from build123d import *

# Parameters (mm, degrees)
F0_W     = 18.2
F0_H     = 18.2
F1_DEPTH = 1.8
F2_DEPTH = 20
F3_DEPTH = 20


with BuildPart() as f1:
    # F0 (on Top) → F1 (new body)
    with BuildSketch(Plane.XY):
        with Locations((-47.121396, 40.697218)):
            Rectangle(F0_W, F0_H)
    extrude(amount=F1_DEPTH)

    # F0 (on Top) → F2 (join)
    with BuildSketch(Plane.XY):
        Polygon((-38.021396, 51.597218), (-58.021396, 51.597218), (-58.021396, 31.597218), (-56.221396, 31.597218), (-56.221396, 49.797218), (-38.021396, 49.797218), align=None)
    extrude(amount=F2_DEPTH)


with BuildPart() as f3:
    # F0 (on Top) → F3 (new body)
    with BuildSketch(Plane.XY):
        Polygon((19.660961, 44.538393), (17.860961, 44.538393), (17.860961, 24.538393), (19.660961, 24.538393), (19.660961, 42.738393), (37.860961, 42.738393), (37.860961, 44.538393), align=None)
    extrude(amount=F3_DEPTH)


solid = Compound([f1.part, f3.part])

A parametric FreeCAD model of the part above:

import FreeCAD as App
import Part
import Sketcher
Q = App.Units.Quantity

doc = App.newDocument("Part")
body = doc.addObject("PartDesign::Body", "Body")

sketch1 = body.newObject("Sketcher::SketchObject", "Sketch")
sketch1.AttachmentSupport = (doc.getObject("XY_Plane"), [""])
sketch1.MapMode = "FlatFace"
sketch1.addGeometry(Part.LineSegment(App.Vector(-56, 50, 0), App.Vector(-56, 32, 0)), False)
sketch1.addGeometry(Part.LineSegment(App.Vector(-56, 32, 0), App.Vector(-38, 32, 0)), False)
sketch1.addGeometry(Part.LineSegment(App.Vector(-38, 32, 0), App.Vector(-38, 50, 0)), False)
sketch1.addGeometry(Part.LineSegment(App.Vector(-38, 50, 0), App.Vector(-56, 50, 0)), False)
sketch1.addConstraint(Sketcher.Constraint("Coincident", 0, 2, 1, 1))
sketch1.addConstraint(Sketcher.Constraint("Coincident", 1, 2, 2, 1))
sketch1.addConstraint(Sketcher.Constraint("Coincident", 2, 2, 3, 1))
sketch1.addConstraint(Sketcher.Constraint("Coincident", 3, 2, 0, 1))
sketch1.addConstraint(Sketcher.Constraint("Vertical", 0))
sketch1.addConstraint(Sketcher.Constraint("Horizontal", 1))
sketch1.addConstraint(Sketcher.Constraint("Vertical", 2))
sketch1.addConstraint(Sketcher.Constraint("Horizontal", 3))
sketch1.addConstraint(Sketcher.Constraint("Equal", 3, 0))
sketch1.addConstraint(Sketcher.Constraint("DistanceX", 1, 1, 1, 2, Q("18.2 mm")))
sketch1.addConstraint(Sketcher.Constraint("DistanceY", -1, 1, 0, 2, Q("31.597218 mm")))
sketch1.addConstraint(Sketcher.Constraint("DistanceX", 0, 2, -1, 1, Q("56.221396 mm")))
pad1 = body.newObject("PartDesign::Pad", "Pad")
pad1.Profile = sketch1
pad1.Length = 1.8

sketch2 = body.newObject("Sketcher::SketchObject", "Sketch001")
sketch2.AttachmentSupport = (doc.getObject("XY_Plane"), [""])
sketch2.MapMode = "FlatFace"
sketch2.addGeometry(Part.LineSegment(App.Vector(-38, 51.6, 0), App.Vector(-58, 51.6, 0)), False)
sketch2.addGeometry(Part.LineSegment(App.Vector(-58, 51.6, 0), App.Vector(-58, 31.6, 0)), False)
sketch2.addGeometry(Part.LineSegment(App.Vector(-58, 31.6, 0), App.Vector(-56.2, 31.6, 0)), False)
sketch2.addGeometry(Part.LineSegment(App.Vector(-56.2, 31.6, 0), App.Vector(-56.2, 49.8, 0)), False)
sketch2.addGeometry(Part.LineSegment(App.Vector(-56.2, 49.8, 0), App.Vector(-38, 49.8, 0)), False)
sketch2.addGeometry(Part.LineSegment(App.Vector(-38, 49.8, 0), App.Vector(-38, 51.6, 0)), False)
sketch2.addConstraint(Sketcher.Constraint("Coincident", 0, 2, 1, 1))
sketch2.addConstraint(Sketcher.Constraint("Coincident", 1, 2, 2, 1))
sketch2.addConstraint(Sketcher.Constraint("Coincident", 2, 2, 3, 1))
sketch2.addConstraint(Sketcher.Constraint("Coincident", 3, 2, 4, 1))
sketch2.addConstraint(Sketcher.Constraint("Coincident", 4, 2, 5, 1))
sketch2.addConstraint(Sketcher.Constraint("Coincident", 5, 2, 0, 1))
sketch2.addConstraint(Sketcher.Constraint("Horizontal", 0))
sketch2.addConstraint(Sketcher.Constraint("Vertical", 1))
sketch2.addConstraint(Sketcher.Constraint("Horizontal", 2))
sketch2.addConstraint(Sketcher.Constraint("Vertical", 3))
sketch2.addConstraint(Sketcher.Constraint("Horizontal", 4))
sketch2.addConstraint(Sketcher.Constraint("Vertical", 5))
sketch2.addConstraint(Sketcher.Constraint("Equal", 0, 1))
sketch2.addConstraint(Sketcher.Constraint("Equal", 4, 3))
sketch2.addConstraint(Sketcher.Constraint("DistanceX", 0, 2, 0, 1, Q("20 mm")))
sketch2.addConstraint(Sketcher.Constraint("DistanceX", 2, 1, 2, 2, Q("1.8 mm")))
sketch2.addConstraint(Sketcher.Constraint("DistanceY", -1, 1, 1, 2, Q("31.597218 mm")))
sketch2.addConstraint(Sketcher.Constraint("DistanceX", 0, 2, -1, 1, Q("58.021396 mm")))
pad2 = body.newObject("PartDesign::Pad", "Pad001")
pad2.Profile = sketch2
pad2.Length = 20
body2 = doc.addObject("PartDesign::Body", "Body001")

sketch3 = body2.newObject("Sketcher::SketchObject", "Sketch002")
sketch3.AttachmentSupport = (doc.getObject("XY_Plane001"), [""])
sketch3.MapMode = "FlatFace"
sketch3.addGeometry(Part.LineSegment(App.Vector(17.9, 44.5, 0), App.Vector(17.9, 24.5, 0)), False)
sketch3.addGeometry(Part.LineSegment(App.Vector(17.9, 24.5, 0), App.Vector(19.7, 24.5, 0)), False)
sketch3.addGeometry(Part.LineSegment(App.Vector(19.7, 24.5, 0), App.Vector(19.7, 42.7, 0)), False)
sketch3.addGeometry(Part.LineSegment(App.Vector(19.7, 42.7, 0), App.Vector(37.9, 42.7, 0)), False)
sketch3.addGeometry(Part.LineSegment(App.Vector(37.9, 42.7, 0), App.Vector(37.9, 44.5, 0)), False)
sketch3.addGeometry(Part.LineSegment(App.Vector(37.9, 44.5, 0), App.Vector(17.9, 44.5, 0)), False)
sketch3.addConstraint(Sketcher.Constraint("Coincident", 0, 2, 1, 1))
sketch3.addConstraint(Sketcher.Constraint("Coincident", 1, 2, 2, 1))
sketch3.addConstraint(Sketcher.Constraint("Coincident", 2, 2, 3, 1))
sketch3.addConstraint(Sketcher.Constraint("Coincident", 3, 2, 4, 1))
sketch3.addConstraint(Sketcher.Constraint("Coincident", 4, 2, 5, 1))
sketch3.addConstraint(Sketcher.Constraint("Coincident", 5, 2, 0, 1))
sketch3.addConstraint(Sketcher.Constraint("Vertical", 0))
sketch3.addConstraint(Sketcher.Constraint("Horizontal", 1))
sketch3.addConstraint(Sketcher.Constraint("Vertical", 2))
sketch3.addConstraint(Sketcher.Constraint("Horizontal", 3))
sketch3.addConstraint(Sketcher.Constraint("Vertical", 4))
sketch3.addConstraint(Sketcher.Constraint("Horizontal", 5))
sketch3.addConstraint(Sketcher.Constraint("Equal", 5, 0))
sketch3.addConstraint(Sketcher.Constraint("Equal", 3, 2))
sketch3.addConstraint(Sketcher.Constraint("DistanceX", 5, 2, 5, 1, Q("20 mm")))
sketch3.addConstraint(Sketcher.Constraint("DistanceX", 1, 1, 1, 2, Q("1.8 mm")))
sketch3.addConstraint(Sketcher.Constraint("DistanceX", -1, 1, 0, 2, Q("17.860961 mm")))
sketch3.addConstraint(Sketcher.Constraint("DistanceY", -1, 1, 0, 2, Q("24.538393 mm")))
pad3 = body2.newObject("PartDesign::Pad", "Pad002")
pad3.Profile = sketch3
pad3.Length = 20

doc.recompute()
